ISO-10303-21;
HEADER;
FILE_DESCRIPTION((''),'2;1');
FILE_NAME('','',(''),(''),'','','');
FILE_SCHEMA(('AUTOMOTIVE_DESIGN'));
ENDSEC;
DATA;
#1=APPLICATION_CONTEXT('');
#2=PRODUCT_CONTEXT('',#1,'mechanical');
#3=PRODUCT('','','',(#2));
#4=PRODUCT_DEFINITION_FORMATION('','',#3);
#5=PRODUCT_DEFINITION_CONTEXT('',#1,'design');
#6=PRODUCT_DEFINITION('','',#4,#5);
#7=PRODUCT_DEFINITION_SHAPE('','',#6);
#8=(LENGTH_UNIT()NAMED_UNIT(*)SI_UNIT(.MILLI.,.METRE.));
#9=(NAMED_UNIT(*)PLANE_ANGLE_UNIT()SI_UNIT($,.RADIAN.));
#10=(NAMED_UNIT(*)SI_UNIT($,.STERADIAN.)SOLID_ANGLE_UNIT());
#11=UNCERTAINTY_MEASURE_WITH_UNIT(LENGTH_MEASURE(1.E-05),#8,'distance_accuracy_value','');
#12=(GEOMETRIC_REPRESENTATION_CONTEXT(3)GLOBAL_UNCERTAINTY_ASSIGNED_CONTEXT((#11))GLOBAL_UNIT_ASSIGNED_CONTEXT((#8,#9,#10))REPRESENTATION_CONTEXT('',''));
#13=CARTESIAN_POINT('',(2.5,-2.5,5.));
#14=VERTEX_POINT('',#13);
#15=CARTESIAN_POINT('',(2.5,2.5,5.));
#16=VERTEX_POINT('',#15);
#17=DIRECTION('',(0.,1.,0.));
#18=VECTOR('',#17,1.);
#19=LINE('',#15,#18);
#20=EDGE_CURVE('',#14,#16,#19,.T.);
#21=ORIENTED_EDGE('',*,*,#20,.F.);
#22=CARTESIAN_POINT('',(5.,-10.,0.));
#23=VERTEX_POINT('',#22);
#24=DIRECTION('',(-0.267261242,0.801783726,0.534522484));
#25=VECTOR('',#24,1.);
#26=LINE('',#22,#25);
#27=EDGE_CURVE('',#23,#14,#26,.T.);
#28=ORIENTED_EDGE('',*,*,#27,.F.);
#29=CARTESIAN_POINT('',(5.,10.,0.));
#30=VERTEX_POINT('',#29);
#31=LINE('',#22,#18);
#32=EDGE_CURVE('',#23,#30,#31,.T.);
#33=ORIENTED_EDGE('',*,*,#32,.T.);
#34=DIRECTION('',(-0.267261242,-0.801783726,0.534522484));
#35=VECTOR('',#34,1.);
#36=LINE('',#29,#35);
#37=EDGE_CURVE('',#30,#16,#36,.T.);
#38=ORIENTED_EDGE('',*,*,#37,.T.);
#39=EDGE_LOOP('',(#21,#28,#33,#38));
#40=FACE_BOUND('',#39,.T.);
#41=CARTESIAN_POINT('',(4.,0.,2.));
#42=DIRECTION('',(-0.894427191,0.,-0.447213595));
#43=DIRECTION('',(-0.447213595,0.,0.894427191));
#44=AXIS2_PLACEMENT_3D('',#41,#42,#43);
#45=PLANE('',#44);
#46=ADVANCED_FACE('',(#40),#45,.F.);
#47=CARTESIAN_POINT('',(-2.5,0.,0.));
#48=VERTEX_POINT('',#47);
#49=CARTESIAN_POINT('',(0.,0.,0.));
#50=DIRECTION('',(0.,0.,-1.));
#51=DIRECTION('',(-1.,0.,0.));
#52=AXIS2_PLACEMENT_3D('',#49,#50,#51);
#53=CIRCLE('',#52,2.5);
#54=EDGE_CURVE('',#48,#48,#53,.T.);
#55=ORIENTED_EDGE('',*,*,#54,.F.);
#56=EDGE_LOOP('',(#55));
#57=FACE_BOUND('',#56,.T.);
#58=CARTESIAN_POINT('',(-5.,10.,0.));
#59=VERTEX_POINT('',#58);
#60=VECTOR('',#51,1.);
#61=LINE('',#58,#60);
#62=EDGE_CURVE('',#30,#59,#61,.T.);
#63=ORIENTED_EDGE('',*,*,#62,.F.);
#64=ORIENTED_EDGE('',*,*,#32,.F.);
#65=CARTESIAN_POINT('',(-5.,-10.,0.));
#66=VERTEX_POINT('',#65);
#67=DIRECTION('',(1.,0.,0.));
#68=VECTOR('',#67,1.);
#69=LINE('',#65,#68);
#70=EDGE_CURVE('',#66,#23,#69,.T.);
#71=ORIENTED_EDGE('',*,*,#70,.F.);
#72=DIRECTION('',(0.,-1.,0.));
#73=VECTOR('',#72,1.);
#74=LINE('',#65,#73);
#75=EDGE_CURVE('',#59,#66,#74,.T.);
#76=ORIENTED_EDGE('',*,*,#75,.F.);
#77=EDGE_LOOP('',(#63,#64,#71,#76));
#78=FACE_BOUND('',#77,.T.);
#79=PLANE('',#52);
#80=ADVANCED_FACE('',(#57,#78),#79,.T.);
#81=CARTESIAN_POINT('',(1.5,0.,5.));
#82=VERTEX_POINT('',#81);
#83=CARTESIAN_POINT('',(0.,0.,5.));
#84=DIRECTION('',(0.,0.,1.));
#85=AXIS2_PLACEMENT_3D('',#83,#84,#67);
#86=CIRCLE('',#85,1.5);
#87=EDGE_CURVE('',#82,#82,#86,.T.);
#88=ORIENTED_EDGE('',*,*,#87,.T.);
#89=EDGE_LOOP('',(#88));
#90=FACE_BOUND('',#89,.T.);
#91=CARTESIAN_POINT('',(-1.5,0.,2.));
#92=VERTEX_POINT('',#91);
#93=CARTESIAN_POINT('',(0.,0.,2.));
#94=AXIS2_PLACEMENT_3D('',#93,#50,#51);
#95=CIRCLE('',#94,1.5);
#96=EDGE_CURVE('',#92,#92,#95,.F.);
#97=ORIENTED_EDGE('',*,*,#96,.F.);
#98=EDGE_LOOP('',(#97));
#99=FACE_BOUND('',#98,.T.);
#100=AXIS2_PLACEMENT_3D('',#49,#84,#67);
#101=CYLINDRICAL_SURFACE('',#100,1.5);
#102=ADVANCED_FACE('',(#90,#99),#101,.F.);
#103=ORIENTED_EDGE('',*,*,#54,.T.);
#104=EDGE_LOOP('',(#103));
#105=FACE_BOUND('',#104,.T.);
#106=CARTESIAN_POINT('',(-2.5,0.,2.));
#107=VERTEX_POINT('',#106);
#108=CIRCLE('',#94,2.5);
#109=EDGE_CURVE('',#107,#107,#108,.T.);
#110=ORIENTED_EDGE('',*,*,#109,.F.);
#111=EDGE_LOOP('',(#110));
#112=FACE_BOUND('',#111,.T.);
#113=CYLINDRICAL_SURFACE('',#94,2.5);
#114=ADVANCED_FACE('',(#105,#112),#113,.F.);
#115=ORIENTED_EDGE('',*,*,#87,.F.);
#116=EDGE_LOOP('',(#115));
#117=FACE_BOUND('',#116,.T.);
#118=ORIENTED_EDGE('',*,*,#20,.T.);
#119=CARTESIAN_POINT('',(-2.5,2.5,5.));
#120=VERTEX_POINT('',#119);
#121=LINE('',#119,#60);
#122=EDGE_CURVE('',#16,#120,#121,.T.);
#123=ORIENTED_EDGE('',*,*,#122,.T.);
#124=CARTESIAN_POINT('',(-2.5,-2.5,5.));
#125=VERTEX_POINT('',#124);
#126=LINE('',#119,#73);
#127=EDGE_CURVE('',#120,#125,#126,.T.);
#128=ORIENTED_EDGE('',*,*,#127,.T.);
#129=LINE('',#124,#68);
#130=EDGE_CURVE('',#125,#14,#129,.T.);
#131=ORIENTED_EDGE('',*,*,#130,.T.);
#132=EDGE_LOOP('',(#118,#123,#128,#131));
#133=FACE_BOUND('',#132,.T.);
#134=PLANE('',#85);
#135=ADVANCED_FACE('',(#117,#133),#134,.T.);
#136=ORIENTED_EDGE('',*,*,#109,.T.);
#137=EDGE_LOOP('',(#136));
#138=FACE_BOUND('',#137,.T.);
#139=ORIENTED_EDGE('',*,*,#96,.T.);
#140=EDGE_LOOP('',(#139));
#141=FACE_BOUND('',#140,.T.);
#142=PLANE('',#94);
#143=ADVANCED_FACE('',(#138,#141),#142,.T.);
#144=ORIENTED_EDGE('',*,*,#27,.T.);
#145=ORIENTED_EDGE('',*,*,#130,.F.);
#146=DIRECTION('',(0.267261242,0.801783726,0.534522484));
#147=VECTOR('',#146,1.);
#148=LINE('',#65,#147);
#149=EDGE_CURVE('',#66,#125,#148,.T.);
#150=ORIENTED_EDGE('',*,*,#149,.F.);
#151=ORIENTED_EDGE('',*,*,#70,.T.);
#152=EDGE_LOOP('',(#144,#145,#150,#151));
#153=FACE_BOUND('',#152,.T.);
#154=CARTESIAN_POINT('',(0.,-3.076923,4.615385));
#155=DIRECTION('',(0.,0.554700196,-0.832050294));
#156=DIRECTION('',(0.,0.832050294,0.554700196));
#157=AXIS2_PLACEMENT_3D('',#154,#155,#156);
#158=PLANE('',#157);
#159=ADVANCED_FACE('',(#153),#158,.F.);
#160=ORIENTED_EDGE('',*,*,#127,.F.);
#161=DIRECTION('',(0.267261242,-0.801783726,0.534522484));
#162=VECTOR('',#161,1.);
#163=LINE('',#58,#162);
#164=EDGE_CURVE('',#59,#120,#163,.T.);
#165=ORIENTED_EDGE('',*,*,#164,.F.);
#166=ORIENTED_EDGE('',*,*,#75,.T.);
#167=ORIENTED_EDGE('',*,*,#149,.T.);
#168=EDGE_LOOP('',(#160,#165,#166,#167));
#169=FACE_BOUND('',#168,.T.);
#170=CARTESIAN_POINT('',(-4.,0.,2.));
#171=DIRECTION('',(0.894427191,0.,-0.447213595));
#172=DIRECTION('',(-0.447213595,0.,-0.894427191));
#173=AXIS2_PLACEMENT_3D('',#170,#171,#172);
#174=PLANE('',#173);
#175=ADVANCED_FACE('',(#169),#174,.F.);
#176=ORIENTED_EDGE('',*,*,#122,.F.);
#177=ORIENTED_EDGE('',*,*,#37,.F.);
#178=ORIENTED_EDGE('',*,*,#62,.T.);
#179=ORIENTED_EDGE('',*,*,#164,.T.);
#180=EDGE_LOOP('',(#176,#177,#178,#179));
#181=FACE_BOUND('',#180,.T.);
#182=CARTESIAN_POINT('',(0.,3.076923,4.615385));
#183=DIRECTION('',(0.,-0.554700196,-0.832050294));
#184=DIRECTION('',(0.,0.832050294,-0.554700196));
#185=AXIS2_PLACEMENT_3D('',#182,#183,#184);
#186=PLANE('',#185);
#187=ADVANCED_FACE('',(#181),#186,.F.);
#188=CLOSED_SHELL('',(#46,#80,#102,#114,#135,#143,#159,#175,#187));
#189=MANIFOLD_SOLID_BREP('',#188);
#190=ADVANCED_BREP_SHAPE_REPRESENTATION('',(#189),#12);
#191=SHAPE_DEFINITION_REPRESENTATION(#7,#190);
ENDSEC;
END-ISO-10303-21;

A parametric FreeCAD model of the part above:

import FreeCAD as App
import Part
import Sketcher
Q = App.Units.Quantity

doc = App.newDocument("Part")
body = doc.addObject("PartDesign::Body", "Body")

# Sketch on XY plane
sketch1 = body.newObject("Sketcher::SketchObject", "Sketch")
sketch1.AttachmentSupport = (doc.getObject("XY_Plane"), [""])
sketch1.MapMode = "FlatFace"
sketch1.addGeometry([
    Part.LineSegment(App.Vector(-5, -10, 0), App.Vector(5, -10, 0)),
    Part.LineSegment(App.Vector(5, -10, 0), App.Vector(5, 10, 0)),
    Part.LineSegment(App.Vector(5, 10, 0), App.Vector(-5, 10, 0)),
    Part.LineSegment(App.Vector(-5, 10, 0), App.Vector(-5, -10, 0)),
], False)
sketch1.addConstraint([
    Sketcher.Constraint("Coincident", 0, 2, 1, 1),
    Sketcher.Constraint("Coincident", 1, 2, 2, 1),
    Sketcher.Constraint("Coincident", 2, 2, 3, 1),
    Sketcher.Constraint("Coincident", 3, 2, 0, 1),
    Sketcher.Constraint("Horizontal", 0),
    Sketcher.Constraint("Vertical", 1),
    Sketcher.Constraint("Horizontal", 2),
    Sketcher.Constraint("Vertical", 3),
    Sketcher.Constraint("Symmetric", 0, 2, 2, 2, -1, 1),
    Sketcher.Constraint("DistanceX", 0, 1, 0, 2, Q("10 mm")),
    Sketcher.Constraint("DistanceY", 1, 1, 1, 2, Q("20 mm")),
])

# Sketch on XY plane
sketch2 = body.newObject("Sketcher::SketchObject", "Sketch001")
sketch2.AttachmentSupport = (doc.getObject("XY_Plane"), [""])
sketch2.MapMode = "FlatFace"
sketch2.AttachmentOffset = App.Placement(App.Vector(0, 0, 5), App.Rotation())
sketch2.addGeometry([
    Part.LineSegment(App.Vector(2.5, 2.5, 0), App.Vector(-2.5, 2.5, 0)),
    Part.LineSegment(App.Vector(-2.5, 2.5, 0), App.Vector(-2.5, -2.5, 0)),
    Part.LineSegment(App.Vector(-2.5, -2.5, 0), App.Vector(2.5, -2.5, 0)),
    Part.LineSegment(App.Vector(2.5, -2.5, 0), App.Vector(2.5, 2.5, 0)),
], False)
sketch2.addConstraint([
    Sketcher.Constraint("Coincident", 0, 2, 1, 1),
    Sketcher.Constraint("Coincident", 1, 2, 2, 1),
    Sketcher.Constraint("Coincident", 2, 2, 3, 1),
    Sketcher.Constraint("Coincident", 3, 2, 0, 1),
    Sketcher.Constraint("Horizontal", 0),
    Sketcher.Constraint("Vertical", 1),
    Sketcher.Constraint("Horizontal", 2),
    Sketcher.Constraint("Vertical", 3),
    Sketcher.Constraint("Symmetric", 0, 2, 2, 2, -1, 1),
    Sketcher.Constraint("Equal", 2, 1),
    Sketcher.Constraint("DistanceX", 0, 2, 0, 1, Q("5 mm")),
])

additiveloft = body.newObject("PartDesign::AdditiveLoft", "AdditiveLoft")
additiveloft.Profile = sketch1
additiveloft.Sections = [sketch2]

# Sketch on XY plane
sketch3 = body.newObject("Sketcher::SketchObject", "Sketch002")
sketch3.AttachmentSupport = (doc.getObject("XY_Plane"), [""])
sketch3.MapMode = "FlatFace"
sketch3.AttachmentOffset = App.Placement(App.Vector(0, 0, 5), App.Rotation())
sketch3.addGeometry(Part.Circle(App.Vector(0, 0, 0), App.Vector(0, 0, 1), 1.5), False)
sketch3.addConstraint([
    Sketcher.Constraint("Coincident", 0, 3, -1, 1),
    Sketcher.Constraint("Diameter", 0, Q("3 mm")),
])
pocket1 = body.newObject("PartDesign::Pocket", "Pocket")
pocket1.Profile = sketch3
pocket1.Length = 5

# Sketch on XY plane
sketch4 = body.newObject("Sketcher::SketchObject", "Sketch003")
sketch4.AttachmentSupport = (doc.getObject("XY_Plane"), [""])
sketch4.MapMode = "FlatFace"
sketch4.addGeometry(Part.Circle(App.Vector(0, 0, 0), App.Vector(0, 0, 1), 2.5), False)
sketch4.addConstraint([
    Sketcher.Constraint("Coincident", 0, 3, -1, 1),
    Sketcher.Constraint("Diameter", 0, Q("5 mm")),
])
pocket2 = body.newObject("PartDesign::Pocket", "Pocket001")
pocket2.Profile = sketch4
pocket2.Length = 2
pocket2.Reversed = True

doc.recompute()
